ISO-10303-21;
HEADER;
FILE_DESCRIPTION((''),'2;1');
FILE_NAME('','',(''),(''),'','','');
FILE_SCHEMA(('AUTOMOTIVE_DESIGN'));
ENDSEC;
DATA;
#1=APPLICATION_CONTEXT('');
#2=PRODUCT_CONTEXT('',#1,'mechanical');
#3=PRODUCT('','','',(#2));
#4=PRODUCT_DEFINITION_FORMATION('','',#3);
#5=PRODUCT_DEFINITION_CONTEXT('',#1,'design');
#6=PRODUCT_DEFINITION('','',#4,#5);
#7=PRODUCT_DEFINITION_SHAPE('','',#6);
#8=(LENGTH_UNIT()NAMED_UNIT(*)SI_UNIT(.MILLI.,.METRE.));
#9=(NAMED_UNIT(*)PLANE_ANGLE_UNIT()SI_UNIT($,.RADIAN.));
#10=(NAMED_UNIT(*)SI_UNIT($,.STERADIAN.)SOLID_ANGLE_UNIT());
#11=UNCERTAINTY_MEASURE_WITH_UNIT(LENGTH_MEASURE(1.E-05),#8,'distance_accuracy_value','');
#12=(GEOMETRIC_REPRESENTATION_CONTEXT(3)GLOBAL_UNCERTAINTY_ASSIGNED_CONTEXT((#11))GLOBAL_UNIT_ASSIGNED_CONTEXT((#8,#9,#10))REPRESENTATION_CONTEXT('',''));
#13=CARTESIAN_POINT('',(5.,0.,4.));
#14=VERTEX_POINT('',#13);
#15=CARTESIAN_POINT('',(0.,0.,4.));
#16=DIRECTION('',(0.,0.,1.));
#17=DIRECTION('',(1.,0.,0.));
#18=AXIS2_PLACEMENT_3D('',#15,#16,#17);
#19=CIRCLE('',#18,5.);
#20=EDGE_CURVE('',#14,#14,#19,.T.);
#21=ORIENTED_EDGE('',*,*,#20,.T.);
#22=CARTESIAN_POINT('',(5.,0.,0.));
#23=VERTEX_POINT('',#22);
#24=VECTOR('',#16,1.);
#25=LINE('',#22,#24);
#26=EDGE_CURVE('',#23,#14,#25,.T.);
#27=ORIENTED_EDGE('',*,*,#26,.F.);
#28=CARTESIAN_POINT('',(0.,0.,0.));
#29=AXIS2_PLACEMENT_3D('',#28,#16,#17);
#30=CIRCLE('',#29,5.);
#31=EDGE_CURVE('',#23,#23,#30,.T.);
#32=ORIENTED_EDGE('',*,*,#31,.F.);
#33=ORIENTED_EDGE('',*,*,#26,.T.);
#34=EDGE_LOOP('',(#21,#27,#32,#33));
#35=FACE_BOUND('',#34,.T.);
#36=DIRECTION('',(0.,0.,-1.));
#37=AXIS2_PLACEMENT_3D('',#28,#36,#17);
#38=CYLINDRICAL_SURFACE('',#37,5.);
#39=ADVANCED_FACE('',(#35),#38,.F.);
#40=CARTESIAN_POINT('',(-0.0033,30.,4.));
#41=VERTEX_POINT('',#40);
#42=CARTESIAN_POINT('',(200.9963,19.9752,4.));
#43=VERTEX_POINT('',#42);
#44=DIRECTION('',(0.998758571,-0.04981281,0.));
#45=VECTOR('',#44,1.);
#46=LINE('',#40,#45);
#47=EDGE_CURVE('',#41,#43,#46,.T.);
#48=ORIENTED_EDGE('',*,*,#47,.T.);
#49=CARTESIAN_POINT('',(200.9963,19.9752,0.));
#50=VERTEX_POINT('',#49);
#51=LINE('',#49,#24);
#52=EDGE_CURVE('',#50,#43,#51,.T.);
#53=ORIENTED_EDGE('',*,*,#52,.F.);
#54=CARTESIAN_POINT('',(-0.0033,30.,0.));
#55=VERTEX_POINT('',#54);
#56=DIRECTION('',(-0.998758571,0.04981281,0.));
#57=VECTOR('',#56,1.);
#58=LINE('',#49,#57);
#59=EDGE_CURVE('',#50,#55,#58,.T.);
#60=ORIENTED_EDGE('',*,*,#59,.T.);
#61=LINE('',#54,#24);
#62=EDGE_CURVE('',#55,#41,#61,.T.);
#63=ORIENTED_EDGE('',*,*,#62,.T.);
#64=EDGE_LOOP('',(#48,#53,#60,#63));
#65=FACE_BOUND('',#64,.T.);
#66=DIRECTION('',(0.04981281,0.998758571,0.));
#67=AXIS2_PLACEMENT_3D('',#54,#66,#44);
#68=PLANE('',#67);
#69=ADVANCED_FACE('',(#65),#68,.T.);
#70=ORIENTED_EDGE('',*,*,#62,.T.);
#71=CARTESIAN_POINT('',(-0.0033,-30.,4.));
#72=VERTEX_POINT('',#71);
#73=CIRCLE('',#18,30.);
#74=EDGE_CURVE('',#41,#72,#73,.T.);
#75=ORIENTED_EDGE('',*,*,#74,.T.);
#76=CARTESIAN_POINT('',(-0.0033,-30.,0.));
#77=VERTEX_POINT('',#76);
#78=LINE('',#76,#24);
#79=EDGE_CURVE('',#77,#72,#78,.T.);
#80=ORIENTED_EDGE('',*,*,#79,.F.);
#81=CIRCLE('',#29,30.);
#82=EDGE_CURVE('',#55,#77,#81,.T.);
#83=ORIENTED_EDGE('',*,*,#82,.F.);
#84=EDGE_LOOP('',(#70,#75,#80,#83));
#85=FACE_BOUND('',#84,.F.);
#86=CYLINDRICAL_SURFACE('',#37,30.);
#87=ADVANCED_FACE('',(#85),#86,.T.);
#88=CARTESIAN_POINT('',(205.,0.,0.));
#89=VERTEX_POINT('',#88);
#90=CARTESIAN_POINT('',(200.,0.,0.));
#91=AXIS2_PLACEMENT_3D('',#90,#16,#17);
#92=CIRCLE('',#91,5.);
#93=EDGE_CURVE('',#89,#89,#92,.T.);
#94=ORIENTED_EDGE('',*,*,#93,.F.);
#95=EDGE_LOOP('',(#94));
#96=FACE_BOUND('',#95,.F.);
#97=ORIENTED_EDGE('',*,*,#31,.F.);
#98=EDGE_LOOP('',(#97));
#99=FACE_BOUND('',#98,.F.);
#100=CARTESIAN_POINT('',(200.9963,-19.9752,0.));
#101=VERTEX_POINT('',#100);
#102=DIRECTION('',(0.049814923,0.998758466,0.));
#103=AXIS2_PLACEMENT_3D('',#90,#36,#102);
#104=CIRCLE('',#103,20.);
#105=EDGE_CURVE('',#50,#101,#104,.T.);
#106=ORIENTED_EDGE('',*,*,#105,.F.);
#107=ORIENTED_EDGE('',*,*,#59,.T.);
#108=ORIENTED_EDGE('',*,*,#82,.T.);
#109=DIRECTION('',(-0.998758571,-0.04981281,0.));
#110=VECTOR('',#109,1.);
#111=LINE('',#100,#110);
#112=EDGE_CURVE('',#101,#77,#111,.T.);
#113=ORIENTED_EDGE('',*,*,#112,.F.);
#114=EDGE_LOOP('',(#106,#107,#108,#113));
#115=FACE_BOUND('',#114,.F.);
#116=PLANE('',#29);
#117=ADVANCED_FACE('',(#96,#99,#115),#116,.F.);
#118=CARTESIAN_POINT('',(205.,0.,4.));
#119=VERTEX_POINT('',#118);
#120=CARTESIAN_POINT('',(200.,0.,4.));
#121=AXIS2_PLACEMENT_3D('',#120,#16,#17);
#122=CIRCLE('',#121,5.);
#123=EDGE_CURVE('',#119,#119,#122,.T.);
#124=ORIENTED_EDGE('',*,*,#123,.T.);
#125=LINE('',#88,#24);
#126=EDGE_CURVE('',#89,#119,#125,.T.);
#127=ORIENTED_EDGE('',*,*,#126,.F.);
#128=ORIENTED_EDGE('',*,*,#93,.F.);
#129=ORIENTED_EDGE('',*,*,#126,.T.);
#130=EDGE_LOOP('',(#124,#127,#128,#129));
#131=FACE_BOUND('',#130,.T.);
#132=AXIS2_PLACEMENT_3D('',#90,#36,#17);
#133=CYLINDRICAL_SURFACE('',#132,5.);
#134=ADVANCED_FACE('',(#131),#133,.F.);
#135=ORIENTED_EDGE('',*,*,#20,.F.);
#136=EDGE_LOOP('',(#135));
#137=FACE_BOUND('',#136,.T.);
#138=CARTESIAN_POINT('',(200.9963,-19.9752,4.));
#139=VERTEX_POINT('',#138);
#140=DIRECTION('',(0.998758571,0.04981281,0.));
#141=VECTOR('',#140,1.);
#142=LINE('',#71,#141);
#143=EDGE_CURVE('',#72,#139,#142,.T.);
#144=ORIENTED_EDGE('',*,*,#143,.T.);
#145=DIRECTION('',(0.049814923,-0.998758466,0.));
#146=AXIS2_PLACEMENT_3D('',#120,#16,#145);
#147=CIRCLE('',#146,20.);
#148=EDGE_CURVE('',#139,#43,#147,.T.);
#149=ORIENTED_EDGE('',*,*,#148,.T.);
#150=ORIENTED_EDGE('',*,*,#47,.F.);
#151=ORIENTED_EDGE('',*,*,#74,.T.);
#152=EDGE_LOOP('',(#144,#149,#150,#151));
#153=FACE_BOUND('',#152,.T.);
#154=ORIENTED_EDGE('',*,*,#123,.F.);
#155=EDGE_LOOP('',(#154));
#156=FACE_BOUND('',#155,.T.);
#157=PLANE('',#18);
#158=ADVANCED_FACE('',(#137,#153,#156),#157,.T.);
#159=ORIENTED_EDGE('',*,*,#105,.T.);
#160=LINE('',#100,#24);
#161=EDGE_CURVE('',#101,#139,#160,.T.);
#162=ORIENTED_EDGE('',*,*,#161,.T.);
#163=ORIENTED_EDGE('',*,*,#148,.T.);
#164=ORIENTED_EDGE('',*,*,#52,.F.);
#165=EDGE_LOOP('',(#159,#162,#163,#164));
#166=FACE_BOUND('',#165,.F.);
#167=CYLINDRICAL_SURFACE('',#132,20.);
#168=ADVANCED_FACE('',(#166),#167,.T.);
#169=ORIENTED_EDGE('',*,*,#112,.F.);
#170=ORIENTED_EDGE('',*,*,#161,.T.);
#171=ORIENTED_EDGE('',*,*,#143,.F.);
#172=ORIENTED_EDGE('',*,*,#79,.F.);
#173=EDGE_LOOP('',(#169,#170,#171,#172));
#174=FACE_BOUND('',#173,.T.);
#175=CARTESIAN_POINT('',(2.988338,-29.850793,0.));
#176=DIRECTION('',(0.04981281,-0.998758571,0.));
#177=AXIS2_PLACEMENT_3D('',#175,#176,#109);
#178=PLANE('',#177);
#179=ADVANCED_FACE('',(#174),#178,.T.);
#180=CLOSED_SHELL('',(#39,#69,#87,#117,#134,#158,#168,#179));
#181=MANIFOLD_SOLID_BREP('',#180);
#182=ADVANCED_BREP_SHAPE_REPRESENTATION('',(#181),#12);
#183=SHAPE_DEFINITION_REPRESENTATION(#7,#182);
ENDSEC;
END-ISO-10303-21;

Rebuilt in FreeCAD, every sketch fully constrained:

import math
import FreeCAD as App
import Part
import Sketcher

V = App.Vector

doc = App.newDocument("Part")
params = doc.addObject("Spreadsheet::Sheet", "Params")
for row, (alias, value) in enumerate([
    ("sketch1_diameter", "10 mm"),
    ("sketch1_radius", "30 mm"),
    ("sketch1_radius2", "20 mm"),
    ("pad1_length", "4 mm"),
], start=1):
    params.set(f"A{row}", alias)
    params.set(f"B{row}", "=" + value)
    params.setAlias(f"B{row}", alias)

body = doc.addObject("PartDesign::Body", "Body")

# Sketch on XY plane
sketch1 = body.newObject("Sketcher::SketchObject", "Sketch")
sketch1.AttachmentSupport = (doc.getObject("XY_Plane"), [""])
sketch1.MapMode = "FlatFace"
sketch1.addGeometry([
    Part.ArcOfCircle(Part.Circle(V(0, 0, 0), V(0, 0, 1), 30), math.radians(90), math.radians(270)),  # 0
    Part.LineSegment(V(0, -30, 0), V(201, -20, 0)),  # 1
    Part.ArcOfCircle(Part.Circle(V(200, 0, 0), V(0, 0, 1), 20), math.radians(-87), math.radians(87)),  # 2
    Part.LineSegment(V(201, 20, 0), V(0, 30, 0)),  # 3
    Part.Circle(V(0, 0, 0), V(0, 0, 1), 5),  # 4
    Part.Circle(V(200, 0, 0), V(0, 0, 1), 5),  # 5
], False)
sketch1.addConstraint([
    Sketcher.Constraint("Coincident", 0, 2, 1, 1),
    Sketcher.Constraint("Tangent", 1, 2, 2, 1),
    Sketcher.Constraint("Tangent", 2, 2, 3, 1),
    Sketcher.Constraint("Coincident", 3, 2, 0, 1),
    Sketcher.Constraint("Coincident", 0, 3, -1, 1),
    Sketcher.Constraint("Coincident", 4, 3, -1, 1),
    Sketcher.Constraint("Coincident", 5, 3, 2, 3),
    Sketcher.Constraint("Equal", 4, 5),
    Sketcher.Constraint("Symmetric", 1, 2, 2, 2, -1),
    Sketcher.Constraint("Diameter", 4, 10.0),
    Sketcher.Constraint("Radius", 0, 30.0),
    Sketcher.Constraint("Radius", 2, 20.0),
    Sketcher.Constraint("DistanceX", -1, 1, 2, 3, 200.0),
    Sketcher.Constraint("Distance", 1, 201.2494),
])
sketch1.setExpression("Constraints[9]", "Params.sketch1_diameter")
sketch1.setExpression("Constraints[10]", "Params.sketch1_radius")
sketch1.setExpression("Constraints[11]", "Params.sketch1_radius2")
pad1 = body.newObject("PartDesign::Pad", "Pad")
pad1.Profile = sketch1
pad1.setExpression("Length", "Params.pad1_length")

doc.recompute()
